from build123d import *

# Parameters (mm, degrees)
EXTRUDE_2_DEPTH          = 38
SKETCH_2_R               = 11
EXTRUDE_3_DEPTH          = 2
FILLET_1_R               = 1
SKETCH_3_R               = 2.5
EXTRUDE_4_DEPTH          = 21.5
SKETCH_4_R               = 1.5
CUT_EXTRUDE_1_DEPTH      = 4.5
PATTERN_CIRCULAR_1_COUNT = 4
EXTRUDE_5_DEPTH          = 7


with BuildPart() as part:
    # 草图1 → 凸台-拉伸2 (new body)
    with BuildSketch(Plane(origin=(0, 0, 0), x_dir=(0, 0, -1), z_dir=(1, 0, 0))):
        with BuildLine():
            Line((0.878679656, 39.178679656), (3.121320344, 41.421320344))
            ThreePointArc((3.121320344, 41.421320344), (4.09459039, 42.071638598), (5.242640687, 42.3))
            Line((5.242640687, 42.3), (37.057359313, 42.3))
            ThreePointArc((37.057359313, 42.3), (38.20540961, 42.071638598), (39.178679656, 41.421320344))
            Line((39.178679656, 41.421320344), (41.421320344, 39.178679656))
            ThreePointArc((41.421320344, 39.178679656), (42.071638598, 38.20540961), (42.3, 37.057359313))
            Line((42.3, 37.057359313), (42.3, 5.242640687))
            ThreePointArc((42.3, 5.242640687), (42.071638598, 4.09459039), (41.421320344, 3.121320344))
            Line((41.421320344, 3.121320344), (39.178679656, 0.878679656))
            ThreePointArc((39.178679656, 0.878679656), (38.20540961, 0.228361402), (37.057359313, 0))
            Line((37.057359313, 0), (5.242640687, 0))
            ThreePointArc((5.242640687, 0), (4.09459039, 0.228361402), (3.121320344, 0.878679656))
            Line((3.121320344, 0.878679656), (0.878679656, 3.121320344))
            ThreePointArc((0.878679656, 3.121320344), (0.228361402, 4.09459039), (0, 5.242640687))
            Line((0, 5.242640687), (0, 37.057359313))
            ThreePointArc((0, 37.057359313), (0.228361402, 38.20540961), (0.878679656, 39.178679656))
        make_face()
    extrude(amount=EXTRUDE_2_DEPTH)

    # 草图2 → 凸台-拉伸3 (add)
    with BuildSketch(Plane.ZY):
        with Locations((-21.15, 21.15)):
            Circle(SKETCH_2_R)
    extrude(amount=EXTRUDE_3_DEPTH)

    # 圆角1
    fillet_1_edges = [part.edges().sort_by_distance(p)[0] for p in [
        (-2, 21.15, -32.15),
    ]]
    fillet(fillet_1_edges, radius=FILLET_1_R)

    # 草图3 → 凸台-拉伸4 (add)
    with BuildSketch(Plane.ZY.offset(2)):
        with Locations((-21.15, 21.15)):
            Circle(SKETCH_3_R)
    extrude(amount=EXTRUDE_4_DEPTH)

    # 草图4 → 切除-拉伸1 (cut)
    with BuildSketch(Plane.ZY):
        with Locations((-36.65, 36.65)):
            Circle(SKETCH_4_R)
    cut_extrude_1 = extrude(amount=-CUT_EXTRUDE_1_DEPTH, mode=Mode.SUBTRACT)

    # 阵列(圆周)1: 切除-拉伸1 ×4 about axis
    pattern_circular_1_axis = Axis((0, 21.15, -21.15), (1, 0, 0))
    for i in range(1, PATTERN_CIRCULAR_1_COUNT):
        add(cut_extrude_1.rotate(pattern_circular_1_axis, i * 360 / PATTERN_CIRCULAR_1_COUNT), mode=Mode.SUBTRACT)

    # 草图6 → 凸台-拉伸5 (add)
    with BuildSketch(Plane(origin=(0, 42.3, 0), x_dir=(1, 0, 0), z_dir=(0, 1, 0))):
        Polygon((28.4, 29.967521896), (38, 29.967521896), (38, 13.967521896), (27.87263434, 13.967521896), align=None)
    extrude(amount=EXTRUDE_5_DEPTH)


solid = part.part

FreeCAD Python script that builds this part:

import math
import FreeCAD as App
import Part
import Sketcher

V = App.Vector


def edges_at(feature, points):
    """Names of the edges that pass closest to the given points."""
    edges = feature.Shape.Edges
    near = lambda p: min(range(len(edges)), key=lambda i: edges[i].distToShape(Part.Vertex(*p))[0])
    return sorted({f"Edge{near(p) + 1}" for p in points})


def add_polygon(sketch, points):
    """Adds a closed chain of lines whose ends are joined by coincident constraints."""
    first, n = sketch.GeometryCount, len(points)
    for a, b in zip(points, points[1:] + points[:1]):
        sketch.addGeometry(Part.LineSegment(App.Vector(*a, 0), App.Vector(*b, 0)), False)
    for i in range(n):
        sketch.addConstraint(Sketcher.Constraint("Coincident", first + i, 2, first + (i + 1) % n, 1))

doc = App.newDocument("Part")
body = doc.addObject("PartDesign::Body", "Body")

# Sketch on YZ plane
sketch1 = body.newObject("Sketcher::SketchObject", "Sketch")
sketch1.AttachmentSupport = (doc.getObject("YZ_Plane"), [""])
sketch1.MapMode = "FlatFace"
sketch1.addGeometry([
    Part.LineSegment(V(41.42132, -3.12132, 0), V(39.17868, -0.87868, 0)),  # 0
    Part.ArcOfCircle(Part.Circle(V(37.057359, -3, 0), V(0, 0, 1), 3), math.radians(45), math.radians(90)),  # 1
    Part.LineSegment(V(37.057359, 0, 0), V(5.242641, 0, 0)),  # 2
    Part.ArcOfCircle(Part.Circle(V(5.242641, -3, 0), V(0, 0, 1), 3), math.radians(90), math.radians(135)),  # 3
    Part.LineSegment(V(3.12132, -0.87868, 0), V(0.87868, -3.12132, 0)),  # 4
    Part.ArcOfCircle(Part.Circle(V(3, -5.242641, 0), V(0, 0, 1), 3), math.radians(135), math.radians(180)),  # 5
    Part.LineSegment(V(0, -5.242641, 0), V(0, -37.057359, 0)),  # 6
    Part.ArcOfCircle(Part.Circle(V(3, -37.057359, 0), V(0, 0, 1), 3), math.radians(180), math.radians(225)),  # 7
    Part.LineSegment(V(0.87868, -39.17868, 0), V(3.12132, -41.42132, 0)),  # 8
    Part.ArcOfCircle(Part.Circle(V(5.242641, -39.3, 0), V(0, 0, 1), 3), math.radians(-135), math.radians(-90)),  # 9
    Part.LineSegment(V(5.242641, -42.3, 0), V(37.057359, -42.3, 0)),  # 10
    Part.ArcOfCircle(Part.Circle(V(37.057359, -39.3, 0), V(0, 0, 1), 3), math.radians(-90), math.radians(-45)),  # 11
    Part.LineSegment(V(39.17868, -41.42132, 0), V(41.42132, -39.17868, 0)),  # 12
    Part.ArcOfCircle(Part.Circle(V(39.3, -37.057359, 0), V(0, 0, 1), 3), math.radians(-45), math.radians(0)),  # 13
    Part.LineSegment(V(42.3, -37.057359, 0), V(42.3, -5.242641, 0)),  # 14
    Part.ArcOfCircle(Part.Circle(V(39.3, -5.242641, 0), V(0, 0, 1), 3), math.radians(0), math.radians(45)),  # 15
], False)
sketch1.addConstraint([
    Sketcher.Constraint("Tangent", 0, 2, 1, 1),
    Sketcher.Constraint("Tangent", 1, 2, 2, 1),
    Sketcher.Constraint("Tangent", 2, 2, 3, 1),
    Sketcher.Constraint("Tangent", 3, 2, 4, 1),
    Sketcher.Constraint("Tangent", 4, 2, 5, 1),
    Sketcher.Constraint("Tangent", 5, 2, 6, 1),
    Sketcher.Constraint("Tangent", 6, 2, 7, 1),
    Sketcher.Constraint("Tangent", 7, 2, 8, 1),
    Sketcher.Constraint("Tangent", 8, 2, 9, 1),
    Sketcher.Constraint("Tangent", 9, 2, 10, 1),
    Sketcher.Constraint("Tangent", 10, 2, 11, 1),
    Sketcher.Constraint("Tangent", 11, 2, 12, 1),
    Sketcher.Constraint("Tangent", 12, 2, 13, 1),
    Sketcher.Constraint("Tangent", 13, 2, 14, 1),
    Sketcher.Constraint("Tangent", 14, 2, 15, 1),
    Sketcher.Constraint("Tangent", 15, 2, 0, 1),
    Sketcher.Constraint("Horizontal", 2),
    Sketcher.Constraint("Vertical", 6),
    Sketcher.Constraint("Horizontal", 10),
    Sketcher.Constraint("Vertical", 14),
    Sketcher.Constraint("Equal", 1, 3),
    Sketcher.Constraint("Equal", 3, 5),
    Sketcher.Constraint("Equal", 5, 7),
    Sketcher.Constraint("Equal", 7, 9),
    Sketcher.Constraint("Equal", 9, 11),
    Sketcher.Constraint("Equal", 11, 13),
    Sketcher.Constraint("Equal", 13, 15),
    Sketcher.Constraint("PointOnObject", 1, 2, -1),
    Sketcher.Constraint("PointOnObject", 5, 2, -2),
    Sketcher.Constraint("Perpendicular", 0, 4),
    Sketcher.Constraint("Perpendicular", 4, 8),
    Sketcher.Constraint("Perpendicular", 8, 12),
    Sketcher.Constraint("Horizontal", 7, 3, 13, 3),
    Sketcher.Constraint("Horizontal", 5, 3, 15, 3),
    Sketcher.Constraint("Horizontal", 0, 2, 3, 2),
    Sketcher.Constraint("Vertical", 3, 3, 9, 3),
    Sketcher.Constraint("Equal", 10, 6),
    Sketcher.Constraint("Radius", 1, 3.0),
    Sketcher.Constraint("DistanceY", 9, 3, -1, 1, 39.3),
    Sketcher.Constraint("DistanceX", 2, 2, 2, 1, 31.814719),
])
pad1 = body.newObject("PartDesign::Pad", "Pad")
pad1.Profile = sketch1
pad1.Length = 38

# Sketch on YZ plane
sketch2 = body.newObject("Sketcher::SketchObject", "Sketch001")
sketch2.AttachmentSupport = (doc.getObject("YZ_Plane"), [""])
sketch2.MapMode = "FlatFace"
sketch2.addGeometry(Part.Circle(V(21.15, -21.15, 0), V(0, 0, 1), 11), False)
sketch2.addConstraint([
    Sketcher.Constraint("Diameter", 0, 22.0),
    Sketcher.Constraint("DistanceX", -1, 1, 0, 3, 21.15),
    Sketcher.Constraint("DistanceY", 0, 3, -1, 1, 21.15),
])
pad2 = body.newObject("PartDesign::Pad", "Pad001")
pad2.Profile = sketch2
pad2.Length = 2
pad2.Reversed = True
doc.recompute()

fillet = body.newObject("PartDesign::Fillet", "Fillet")
fillet.Base = (pad2, edges_at(pad2, [(-2, 21.15, -32.15)]))
fillet.Radius = 1

# Sketch on YZ plane
sketch3 = body.newObject("Sketcher::SketchObject", "Sketch002")
sketch3.AttachmentSupport = (doc.getObject("YZ_Plane"), [""])
sketch3.MapMode = "FlatFace"
sketch3.AttachmentOffset = App.Placement(V(0, 0, -2), App.Rotation())
sketch3.addGeometry(Part.Circle(V(21.15, -21.15, 0), V(0, 0, 1), 2.5), False)
sketch3.addConstraint([
    Sketcher.Constraint("Diameter", 0, 5.0),
    Sketcher.Constraint("DistanceX", -1, 1, 0, 3, 21.15),
    Sketcher.Constraint("DistanceY", 0, 3, -1, 1, 21.15),
])
pad3 = body.newObject("PartDesign::Pad", "Pad002")
pad3.Profile = sketch3
pad3.Length = 21.5
pad3.Reversed = True

# Sketch on YZ plane
sketch4 = body.newObject("Sketcher::SketchObject", "Sketch003")
sketch4.AttachmentSupport = (doc.getObject("YZ_Plane"), [""])
sketch4.MapMode = "FlatFace"
sketch4.addGeometry(Part.Circle(V(36.65, -36.65, 0), V(0, 0, 1), 1.5), False)
sketch4.addConstraint([
    Sketcher.Constraint("Diameter", 0, 3.0),
    Sketcher.Constraint("DistanceX", -1, 1, 0, 3, 36.65),
    Sketcher.Constraint("DistanceY", 0, 3, -1, 1, 36.65),
])
pocket1 = body.newObject("PartDesign::Pocket", "Pocket")
pocket1.Profile = sketch4
pocket1.Length = 4.5
pocket1.Reversed = True
doc.recompute()

datumline = body.newObject("PartDesign::Line", "DatumLine")
datumline.Placement = App.Placement(V(0, 21.15, -21.15), App.Rotation(V(0, 0, 1), V(1, 0, 0)))
polarpattern = body.newObject("PartDesign::PolarPattern", "PolarPattern")
polarpattern.Originals = [pocket1]
polarpattern.Axis = (datumline, [""])
polarpattern.Angle = 360
polarpattern.Occurrences = 4
body.Tip = polarpattern

# Sketch on XZ plane
sketch5 = body.newObject("Sketcher::SketchObject", "Sketch004")
sketch5.AttachmentSupport = (doc.getObject("XZ_Plane"), [""])
sketch5.MapMode = "FlatFace"
sketch5.AttachmentOffset = App.Placement(V(0, 0, -42.3), App.Rotation())
add_polygon(sketch5, [(38, -29.967522), (28.4, -29.967522), (27.872634, -13.967522), (38, -13.967522)])  # lines 0-3
sketch5.addConstraint([
    Sketcher.Constraint("Horizontal", 0),
    Sketcher.Constraint("Horizontal", 2),
    Sketcher.Constraint("Vertical", 3),
    Sketcher.Constraint("DistanceY", 3, 2, 3, 1, 16.0),
    Sketcher.Constraint("DistanceX", 0, 2, 0, 1, 9.6),
    Sketcher.Constraint("DistanceX", -1, 1, 2, 2, 38.0),
    Sketcher.Constraint("Distance", 1, 16.008689),
    Sketcher.Constraint("DistanceY", 0, 2, -1, 1, 29.967522),
])
pad4 = body.newObject("PartDesign::Pad", "Pad003")
pad4.Profile = sketch5
pad4.Length = 7
pad4.Reversed = True

doc.recompute()
